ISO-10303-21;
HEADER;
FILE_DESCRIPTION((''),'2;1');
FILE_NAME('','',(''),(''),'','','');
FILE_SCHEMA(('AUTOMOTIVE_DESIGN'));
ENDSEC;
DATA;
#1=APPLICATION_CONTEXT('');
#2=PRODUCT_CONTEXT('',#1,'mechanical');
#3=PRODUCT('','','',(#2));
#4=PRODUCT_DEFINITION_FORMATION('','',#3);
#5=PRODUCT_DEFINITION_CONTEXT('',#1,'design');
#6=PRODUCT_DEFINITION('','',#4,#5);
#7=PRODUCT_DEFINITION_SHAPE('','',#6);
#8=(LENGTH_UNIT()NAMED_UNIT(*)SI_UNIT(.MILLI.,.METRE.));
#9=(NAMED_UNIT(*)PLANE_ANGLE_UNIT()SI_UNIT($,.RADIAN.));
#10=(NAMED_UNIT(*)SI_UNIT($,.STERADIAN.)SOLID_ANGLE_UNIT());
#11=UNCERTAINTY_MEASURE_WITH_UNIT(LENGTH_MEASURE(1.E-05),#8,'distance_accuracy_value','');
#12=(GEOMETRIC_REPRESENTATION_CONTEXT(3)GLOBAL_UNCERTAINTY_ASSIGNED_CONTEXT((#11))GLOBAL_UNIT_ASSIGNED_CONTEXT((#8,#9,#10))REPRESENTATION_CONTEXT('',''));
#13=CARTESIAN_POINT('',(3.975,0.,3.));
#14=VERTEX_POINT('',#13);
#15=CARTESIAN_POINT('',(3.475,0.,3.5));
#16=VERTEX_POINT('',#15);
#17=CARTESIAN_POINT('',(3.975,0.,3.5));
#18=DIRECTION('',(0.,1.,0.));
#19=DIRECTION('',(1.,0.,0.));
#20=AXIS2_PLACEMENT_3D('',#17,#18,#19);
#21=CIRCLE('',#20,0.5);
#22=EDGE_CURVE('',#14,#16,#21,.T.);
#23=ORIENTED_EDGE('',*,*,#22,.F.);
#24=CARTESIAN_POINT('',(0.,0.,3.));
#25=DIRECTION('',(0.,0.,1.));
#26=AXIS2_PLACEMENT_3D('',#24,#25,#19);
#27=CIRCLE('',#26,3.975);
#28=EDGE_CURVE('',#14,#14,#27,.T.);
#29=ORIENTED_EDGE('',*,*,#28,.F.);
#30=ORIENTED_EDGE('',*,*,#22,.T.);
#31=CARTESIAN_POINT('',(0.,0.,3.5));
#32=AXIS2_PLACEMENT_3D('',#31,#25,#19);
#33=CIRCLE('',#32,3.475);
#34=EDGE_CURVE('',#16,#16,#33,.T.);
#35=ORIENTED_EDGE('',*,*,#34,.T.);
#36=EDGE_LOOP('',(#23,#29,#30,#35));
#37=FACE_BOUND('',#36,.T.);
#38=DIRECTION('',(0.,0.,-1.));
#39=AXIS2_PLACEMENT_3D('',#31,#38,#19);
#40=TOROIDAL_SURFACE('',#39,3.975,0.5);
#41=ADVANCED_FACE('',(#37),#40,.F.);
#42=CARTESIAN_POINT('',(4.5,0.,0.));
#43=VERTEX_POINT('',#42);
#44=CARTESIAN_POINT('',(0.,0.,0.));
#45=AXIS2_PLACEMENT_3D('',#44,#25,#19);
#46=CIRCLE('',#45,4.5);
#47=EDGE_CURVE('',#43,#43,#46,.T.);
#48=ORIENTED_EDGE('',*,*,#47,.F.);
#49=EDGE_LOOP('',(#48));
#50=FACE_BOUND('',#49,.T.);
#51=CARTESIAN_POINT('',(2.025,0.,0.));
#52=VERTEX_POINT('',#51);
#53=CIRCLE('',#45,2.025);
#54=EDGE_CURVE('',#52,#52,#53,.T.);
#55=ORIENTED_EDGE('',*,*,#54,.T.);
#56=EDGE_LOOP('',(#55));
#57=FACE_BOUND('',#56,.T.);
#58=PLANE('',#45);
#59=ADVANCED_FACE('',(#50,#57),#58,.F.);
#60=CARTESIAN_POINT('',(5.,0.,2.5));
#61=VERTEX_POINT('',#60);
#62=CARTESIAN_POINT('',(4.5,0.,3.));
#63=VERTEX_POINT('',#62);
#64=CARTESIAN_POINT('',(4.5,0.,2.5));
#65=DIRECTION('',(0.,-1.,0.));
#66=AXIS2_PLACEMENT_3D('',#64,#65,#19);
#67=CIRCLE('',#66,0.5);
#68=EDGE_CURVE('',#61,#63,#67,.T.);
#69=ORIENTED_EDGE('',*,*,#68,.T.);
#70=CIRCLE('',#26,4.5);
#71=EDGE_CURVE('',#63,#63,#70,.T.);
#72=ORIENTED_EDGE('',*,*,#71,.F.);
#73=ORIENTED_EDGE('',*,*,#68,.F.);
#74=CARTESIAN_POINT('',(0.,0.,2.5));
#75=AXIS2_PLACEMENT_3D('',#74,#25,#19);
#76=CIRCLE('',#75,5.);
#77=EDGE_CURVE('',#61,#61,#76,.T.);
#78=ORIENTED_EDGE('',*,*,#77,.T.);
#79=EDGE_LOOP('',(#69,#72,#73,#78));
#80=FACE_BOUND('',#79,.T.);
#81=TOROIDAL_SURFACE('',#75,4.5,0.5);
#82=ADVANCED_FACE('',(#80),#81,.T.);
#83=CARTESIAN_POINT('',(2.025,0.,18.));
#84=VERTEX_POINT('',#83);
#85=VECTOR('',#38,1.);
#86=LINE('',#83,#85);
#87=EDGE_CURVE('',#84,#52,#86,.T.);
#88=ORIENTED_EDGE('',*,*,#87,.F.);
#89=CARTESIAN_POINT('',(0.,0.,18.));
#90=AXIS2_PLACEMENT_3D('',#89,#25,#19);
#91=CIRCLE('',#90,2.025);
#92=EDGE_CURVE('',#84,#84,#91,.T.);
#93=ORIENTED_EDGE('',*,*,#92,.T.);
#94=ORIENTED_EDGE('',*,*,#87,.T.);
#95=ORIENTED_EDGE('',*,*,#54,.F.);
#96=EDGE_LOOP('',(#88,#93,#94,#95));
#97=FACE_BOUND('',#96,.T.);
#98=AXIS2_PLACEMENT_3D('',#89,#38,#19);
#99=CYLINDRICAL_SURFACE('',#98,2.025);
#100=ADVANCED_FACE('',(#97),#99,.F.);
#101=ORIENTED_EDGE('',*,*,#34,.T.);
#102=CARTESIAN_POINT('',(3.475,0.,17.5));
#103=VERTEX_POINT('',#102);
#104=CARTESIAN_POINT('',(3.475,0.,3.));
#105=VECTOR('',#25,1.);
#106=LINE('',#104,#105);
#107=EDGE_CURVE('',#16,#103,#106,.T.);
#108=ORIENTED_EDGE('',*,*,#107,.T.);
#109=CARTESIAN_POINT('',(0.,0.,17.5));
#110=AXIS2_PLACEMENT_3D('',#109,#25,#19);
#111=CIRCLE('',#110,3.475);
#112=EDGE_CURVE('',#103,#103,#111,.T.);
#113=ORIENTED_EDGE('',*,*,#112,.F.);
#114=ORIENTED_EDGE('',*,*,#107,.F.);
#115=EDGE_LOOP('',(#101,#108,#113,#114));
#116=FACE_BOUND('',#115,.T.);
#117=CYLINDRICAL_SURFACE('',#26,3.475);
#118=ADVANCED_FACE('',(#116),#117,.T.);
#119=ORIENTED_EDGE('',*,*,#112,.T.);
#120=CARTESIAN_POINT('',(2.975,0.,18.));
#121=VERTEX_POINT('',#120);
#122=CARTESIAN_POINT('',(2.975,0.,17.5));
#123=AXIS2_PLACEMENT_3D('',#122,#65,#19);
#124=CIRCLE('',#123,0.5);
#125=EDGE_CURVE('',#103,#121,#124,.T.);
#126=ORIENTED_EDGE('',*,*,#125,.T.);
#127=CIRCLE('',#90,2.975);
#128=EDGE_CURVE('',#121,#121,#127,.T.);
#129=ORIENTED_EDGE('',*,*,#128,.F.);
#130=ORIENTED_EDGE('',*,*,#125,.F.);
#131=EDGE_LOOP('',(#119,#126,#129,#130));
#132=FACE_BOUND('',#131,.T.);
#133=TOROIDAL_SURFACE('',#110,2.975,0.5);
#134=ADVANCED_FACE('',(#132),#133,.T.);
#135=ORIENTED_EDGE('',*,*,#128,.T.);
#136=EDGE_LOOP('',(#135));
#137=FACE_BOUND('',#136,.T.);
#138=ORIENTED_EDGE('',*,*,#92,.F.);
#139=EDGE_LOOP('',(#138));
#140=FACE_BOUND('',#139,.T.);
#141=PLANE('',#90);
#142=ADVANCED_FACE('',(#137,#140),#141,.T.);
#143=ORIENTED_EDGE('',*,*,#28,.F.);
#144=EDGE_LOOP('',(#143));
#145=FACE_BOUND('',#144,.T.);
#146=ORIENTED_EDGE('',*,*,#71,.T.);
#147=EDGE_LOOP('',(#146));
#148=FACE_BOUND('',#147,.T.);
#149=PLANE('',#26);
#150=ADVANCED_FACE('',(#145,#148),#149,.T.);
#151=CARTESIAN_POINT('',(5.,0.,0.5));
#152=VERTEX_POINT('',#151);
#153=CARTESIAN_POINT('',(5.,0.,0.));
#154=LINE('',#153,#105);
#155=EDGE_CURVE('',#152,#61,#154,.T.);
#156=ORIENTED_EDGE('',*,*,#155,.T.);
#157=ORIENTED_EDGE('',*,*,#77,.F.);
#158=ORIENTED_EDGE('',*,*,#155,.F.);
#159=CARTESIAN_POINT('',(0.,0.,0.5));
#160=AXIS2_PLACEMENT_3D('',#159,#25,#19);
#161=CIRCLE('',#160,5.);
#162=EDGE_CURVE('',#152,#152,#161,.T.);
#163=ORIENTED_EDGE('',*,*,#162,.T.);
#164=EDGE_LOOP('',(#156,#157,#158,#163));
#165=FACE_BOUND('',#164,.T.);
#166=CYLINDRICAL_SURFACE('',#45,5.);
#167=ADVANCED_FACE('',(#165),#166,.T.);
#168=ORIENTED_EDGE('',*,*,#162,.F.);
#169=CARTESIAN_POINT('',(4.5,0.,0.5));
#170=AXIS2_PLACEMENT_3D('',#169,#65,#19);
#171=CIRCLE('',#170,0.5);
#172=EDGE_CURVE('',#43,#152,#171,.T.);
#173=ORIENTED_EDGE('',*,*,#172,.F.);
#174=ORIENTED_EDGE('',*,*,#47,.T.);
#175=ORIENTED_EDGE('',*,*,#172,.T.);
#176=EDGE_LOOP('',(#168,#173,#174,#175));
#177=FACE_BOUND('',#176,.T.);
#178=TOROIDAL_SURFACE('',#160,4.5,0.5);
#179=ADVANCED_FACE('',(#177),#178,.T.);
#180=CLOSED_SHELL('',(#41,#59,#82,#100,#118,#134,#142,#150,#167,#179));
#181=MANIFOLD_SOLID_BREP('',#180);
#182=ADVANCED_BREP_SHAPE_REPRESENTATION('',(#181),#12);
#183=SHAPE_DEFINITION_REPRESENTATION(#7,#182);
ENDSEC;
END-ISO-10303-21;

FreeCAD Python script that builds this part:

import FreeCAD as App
import Part
import Sketcher


def edges_at(feature, points):
    """Names of the edges that pass closest to the given points."""
    edges = feature.Shape.Edges
    near = lambda p: min(range(len(edges)), key=lambda i: edges[i].distToShape(Part.Vertex(*p))[0])
    return sorted({f"Edge{near(p) + 1}" for p in points})


def add_polygon(sketch, points):
    """Adds a closed chain of lines whose ends are joined by coincident constraints."""
    first, n = sketch.GeometryCount, len(points)
    for a, b in zip(points, points[1:] + points[:1]):
        sketch.addGeometry(Part.LineSegment(App.Vector(*a, 0), App.Vector(*b, 0)), False)
    for i in range(n):
        sketch.addConstraint(Sketcher.Constraint("Coincident", first + i, 2, first + (i + 1) % n, 1))

doc = App.newDocument("Part")
body = doc.addObject("PartDesign::Body", "Body")

sketch1 = doc.addObject("Sketcher::SketchObject", "Sketch")
body.addObject(sketch1)
sketch1.AttachmentSupport = (doc.XZ_Plane, [""])
sketch1.MapMode = "FlatFace"
add_polygon(sketch1, [(2, 18), (2, 0), (5, 0), (5, 3), (3.5, 3), (3.5, 18)])
sketch1.addConstraint(Sketcher.Constraint("Vertical", 0))
sketch1.addConstraint(Sketcher.Constraint("Horizontal", 1))
sketch1.addConstraint(Sketcher.Constraint("Vertical", 2))
sketch1.addConstraint(Sketcher.Constraint("Horizontal", 3))
sketch1.addConstraint(Sketcher.Constraint("Vertical", 4))
sketch1.addConstraint(Sketcher.Constraint("Horizontal", 5))
sketch1.addConstraint(Sketcher.Constraint("PointOnObject", 0, 2, -1))
sketch1.addConstraint(Sketcher.Constraint("DistanceY", 0, 2, 0, 1, 18.0))
sketch1.addConstraint(Sketcher.Constraint("DistanceY", 2, 1, 2, 2, 3.0))
sketch1.addConstraint(Sketcher.Constraint("DistanceX", -1, 1, 1, 2, 5.0))
sketch1.addConstraint(Sketcher.Constraint("DistanceX", 5, 2, 5, 1, 1.45))
sketch1.addConstraint(Sketcher.Constraint("DistanceX", 1, 1, 1, 2, 2.975))
revolution = doc.addObject("PartDesign::Revolution", "Revolution")
body.addObject(revolution)
revolution.Profile = sketch1
revolution.ReferenceAxis = (sketch1, ["V_Axis"])
revolution.Angle = 360
doc.recompute()

fillet = doc.addObject("PartDesign::Fillet", "Fillet")
body.addObject(fillet)
fillet.Base = (revolution, edges_at(revolution, [
    (-3.475, 0, 3),
    (-3.475, 0, 18),
    (3.475, 0, 10.5),
    (-5, 0, 0),
    (-5, 0, 3),
    (5, 0, 1.5),
]))
fillet.Radius = 0.5

doc.recompute()
